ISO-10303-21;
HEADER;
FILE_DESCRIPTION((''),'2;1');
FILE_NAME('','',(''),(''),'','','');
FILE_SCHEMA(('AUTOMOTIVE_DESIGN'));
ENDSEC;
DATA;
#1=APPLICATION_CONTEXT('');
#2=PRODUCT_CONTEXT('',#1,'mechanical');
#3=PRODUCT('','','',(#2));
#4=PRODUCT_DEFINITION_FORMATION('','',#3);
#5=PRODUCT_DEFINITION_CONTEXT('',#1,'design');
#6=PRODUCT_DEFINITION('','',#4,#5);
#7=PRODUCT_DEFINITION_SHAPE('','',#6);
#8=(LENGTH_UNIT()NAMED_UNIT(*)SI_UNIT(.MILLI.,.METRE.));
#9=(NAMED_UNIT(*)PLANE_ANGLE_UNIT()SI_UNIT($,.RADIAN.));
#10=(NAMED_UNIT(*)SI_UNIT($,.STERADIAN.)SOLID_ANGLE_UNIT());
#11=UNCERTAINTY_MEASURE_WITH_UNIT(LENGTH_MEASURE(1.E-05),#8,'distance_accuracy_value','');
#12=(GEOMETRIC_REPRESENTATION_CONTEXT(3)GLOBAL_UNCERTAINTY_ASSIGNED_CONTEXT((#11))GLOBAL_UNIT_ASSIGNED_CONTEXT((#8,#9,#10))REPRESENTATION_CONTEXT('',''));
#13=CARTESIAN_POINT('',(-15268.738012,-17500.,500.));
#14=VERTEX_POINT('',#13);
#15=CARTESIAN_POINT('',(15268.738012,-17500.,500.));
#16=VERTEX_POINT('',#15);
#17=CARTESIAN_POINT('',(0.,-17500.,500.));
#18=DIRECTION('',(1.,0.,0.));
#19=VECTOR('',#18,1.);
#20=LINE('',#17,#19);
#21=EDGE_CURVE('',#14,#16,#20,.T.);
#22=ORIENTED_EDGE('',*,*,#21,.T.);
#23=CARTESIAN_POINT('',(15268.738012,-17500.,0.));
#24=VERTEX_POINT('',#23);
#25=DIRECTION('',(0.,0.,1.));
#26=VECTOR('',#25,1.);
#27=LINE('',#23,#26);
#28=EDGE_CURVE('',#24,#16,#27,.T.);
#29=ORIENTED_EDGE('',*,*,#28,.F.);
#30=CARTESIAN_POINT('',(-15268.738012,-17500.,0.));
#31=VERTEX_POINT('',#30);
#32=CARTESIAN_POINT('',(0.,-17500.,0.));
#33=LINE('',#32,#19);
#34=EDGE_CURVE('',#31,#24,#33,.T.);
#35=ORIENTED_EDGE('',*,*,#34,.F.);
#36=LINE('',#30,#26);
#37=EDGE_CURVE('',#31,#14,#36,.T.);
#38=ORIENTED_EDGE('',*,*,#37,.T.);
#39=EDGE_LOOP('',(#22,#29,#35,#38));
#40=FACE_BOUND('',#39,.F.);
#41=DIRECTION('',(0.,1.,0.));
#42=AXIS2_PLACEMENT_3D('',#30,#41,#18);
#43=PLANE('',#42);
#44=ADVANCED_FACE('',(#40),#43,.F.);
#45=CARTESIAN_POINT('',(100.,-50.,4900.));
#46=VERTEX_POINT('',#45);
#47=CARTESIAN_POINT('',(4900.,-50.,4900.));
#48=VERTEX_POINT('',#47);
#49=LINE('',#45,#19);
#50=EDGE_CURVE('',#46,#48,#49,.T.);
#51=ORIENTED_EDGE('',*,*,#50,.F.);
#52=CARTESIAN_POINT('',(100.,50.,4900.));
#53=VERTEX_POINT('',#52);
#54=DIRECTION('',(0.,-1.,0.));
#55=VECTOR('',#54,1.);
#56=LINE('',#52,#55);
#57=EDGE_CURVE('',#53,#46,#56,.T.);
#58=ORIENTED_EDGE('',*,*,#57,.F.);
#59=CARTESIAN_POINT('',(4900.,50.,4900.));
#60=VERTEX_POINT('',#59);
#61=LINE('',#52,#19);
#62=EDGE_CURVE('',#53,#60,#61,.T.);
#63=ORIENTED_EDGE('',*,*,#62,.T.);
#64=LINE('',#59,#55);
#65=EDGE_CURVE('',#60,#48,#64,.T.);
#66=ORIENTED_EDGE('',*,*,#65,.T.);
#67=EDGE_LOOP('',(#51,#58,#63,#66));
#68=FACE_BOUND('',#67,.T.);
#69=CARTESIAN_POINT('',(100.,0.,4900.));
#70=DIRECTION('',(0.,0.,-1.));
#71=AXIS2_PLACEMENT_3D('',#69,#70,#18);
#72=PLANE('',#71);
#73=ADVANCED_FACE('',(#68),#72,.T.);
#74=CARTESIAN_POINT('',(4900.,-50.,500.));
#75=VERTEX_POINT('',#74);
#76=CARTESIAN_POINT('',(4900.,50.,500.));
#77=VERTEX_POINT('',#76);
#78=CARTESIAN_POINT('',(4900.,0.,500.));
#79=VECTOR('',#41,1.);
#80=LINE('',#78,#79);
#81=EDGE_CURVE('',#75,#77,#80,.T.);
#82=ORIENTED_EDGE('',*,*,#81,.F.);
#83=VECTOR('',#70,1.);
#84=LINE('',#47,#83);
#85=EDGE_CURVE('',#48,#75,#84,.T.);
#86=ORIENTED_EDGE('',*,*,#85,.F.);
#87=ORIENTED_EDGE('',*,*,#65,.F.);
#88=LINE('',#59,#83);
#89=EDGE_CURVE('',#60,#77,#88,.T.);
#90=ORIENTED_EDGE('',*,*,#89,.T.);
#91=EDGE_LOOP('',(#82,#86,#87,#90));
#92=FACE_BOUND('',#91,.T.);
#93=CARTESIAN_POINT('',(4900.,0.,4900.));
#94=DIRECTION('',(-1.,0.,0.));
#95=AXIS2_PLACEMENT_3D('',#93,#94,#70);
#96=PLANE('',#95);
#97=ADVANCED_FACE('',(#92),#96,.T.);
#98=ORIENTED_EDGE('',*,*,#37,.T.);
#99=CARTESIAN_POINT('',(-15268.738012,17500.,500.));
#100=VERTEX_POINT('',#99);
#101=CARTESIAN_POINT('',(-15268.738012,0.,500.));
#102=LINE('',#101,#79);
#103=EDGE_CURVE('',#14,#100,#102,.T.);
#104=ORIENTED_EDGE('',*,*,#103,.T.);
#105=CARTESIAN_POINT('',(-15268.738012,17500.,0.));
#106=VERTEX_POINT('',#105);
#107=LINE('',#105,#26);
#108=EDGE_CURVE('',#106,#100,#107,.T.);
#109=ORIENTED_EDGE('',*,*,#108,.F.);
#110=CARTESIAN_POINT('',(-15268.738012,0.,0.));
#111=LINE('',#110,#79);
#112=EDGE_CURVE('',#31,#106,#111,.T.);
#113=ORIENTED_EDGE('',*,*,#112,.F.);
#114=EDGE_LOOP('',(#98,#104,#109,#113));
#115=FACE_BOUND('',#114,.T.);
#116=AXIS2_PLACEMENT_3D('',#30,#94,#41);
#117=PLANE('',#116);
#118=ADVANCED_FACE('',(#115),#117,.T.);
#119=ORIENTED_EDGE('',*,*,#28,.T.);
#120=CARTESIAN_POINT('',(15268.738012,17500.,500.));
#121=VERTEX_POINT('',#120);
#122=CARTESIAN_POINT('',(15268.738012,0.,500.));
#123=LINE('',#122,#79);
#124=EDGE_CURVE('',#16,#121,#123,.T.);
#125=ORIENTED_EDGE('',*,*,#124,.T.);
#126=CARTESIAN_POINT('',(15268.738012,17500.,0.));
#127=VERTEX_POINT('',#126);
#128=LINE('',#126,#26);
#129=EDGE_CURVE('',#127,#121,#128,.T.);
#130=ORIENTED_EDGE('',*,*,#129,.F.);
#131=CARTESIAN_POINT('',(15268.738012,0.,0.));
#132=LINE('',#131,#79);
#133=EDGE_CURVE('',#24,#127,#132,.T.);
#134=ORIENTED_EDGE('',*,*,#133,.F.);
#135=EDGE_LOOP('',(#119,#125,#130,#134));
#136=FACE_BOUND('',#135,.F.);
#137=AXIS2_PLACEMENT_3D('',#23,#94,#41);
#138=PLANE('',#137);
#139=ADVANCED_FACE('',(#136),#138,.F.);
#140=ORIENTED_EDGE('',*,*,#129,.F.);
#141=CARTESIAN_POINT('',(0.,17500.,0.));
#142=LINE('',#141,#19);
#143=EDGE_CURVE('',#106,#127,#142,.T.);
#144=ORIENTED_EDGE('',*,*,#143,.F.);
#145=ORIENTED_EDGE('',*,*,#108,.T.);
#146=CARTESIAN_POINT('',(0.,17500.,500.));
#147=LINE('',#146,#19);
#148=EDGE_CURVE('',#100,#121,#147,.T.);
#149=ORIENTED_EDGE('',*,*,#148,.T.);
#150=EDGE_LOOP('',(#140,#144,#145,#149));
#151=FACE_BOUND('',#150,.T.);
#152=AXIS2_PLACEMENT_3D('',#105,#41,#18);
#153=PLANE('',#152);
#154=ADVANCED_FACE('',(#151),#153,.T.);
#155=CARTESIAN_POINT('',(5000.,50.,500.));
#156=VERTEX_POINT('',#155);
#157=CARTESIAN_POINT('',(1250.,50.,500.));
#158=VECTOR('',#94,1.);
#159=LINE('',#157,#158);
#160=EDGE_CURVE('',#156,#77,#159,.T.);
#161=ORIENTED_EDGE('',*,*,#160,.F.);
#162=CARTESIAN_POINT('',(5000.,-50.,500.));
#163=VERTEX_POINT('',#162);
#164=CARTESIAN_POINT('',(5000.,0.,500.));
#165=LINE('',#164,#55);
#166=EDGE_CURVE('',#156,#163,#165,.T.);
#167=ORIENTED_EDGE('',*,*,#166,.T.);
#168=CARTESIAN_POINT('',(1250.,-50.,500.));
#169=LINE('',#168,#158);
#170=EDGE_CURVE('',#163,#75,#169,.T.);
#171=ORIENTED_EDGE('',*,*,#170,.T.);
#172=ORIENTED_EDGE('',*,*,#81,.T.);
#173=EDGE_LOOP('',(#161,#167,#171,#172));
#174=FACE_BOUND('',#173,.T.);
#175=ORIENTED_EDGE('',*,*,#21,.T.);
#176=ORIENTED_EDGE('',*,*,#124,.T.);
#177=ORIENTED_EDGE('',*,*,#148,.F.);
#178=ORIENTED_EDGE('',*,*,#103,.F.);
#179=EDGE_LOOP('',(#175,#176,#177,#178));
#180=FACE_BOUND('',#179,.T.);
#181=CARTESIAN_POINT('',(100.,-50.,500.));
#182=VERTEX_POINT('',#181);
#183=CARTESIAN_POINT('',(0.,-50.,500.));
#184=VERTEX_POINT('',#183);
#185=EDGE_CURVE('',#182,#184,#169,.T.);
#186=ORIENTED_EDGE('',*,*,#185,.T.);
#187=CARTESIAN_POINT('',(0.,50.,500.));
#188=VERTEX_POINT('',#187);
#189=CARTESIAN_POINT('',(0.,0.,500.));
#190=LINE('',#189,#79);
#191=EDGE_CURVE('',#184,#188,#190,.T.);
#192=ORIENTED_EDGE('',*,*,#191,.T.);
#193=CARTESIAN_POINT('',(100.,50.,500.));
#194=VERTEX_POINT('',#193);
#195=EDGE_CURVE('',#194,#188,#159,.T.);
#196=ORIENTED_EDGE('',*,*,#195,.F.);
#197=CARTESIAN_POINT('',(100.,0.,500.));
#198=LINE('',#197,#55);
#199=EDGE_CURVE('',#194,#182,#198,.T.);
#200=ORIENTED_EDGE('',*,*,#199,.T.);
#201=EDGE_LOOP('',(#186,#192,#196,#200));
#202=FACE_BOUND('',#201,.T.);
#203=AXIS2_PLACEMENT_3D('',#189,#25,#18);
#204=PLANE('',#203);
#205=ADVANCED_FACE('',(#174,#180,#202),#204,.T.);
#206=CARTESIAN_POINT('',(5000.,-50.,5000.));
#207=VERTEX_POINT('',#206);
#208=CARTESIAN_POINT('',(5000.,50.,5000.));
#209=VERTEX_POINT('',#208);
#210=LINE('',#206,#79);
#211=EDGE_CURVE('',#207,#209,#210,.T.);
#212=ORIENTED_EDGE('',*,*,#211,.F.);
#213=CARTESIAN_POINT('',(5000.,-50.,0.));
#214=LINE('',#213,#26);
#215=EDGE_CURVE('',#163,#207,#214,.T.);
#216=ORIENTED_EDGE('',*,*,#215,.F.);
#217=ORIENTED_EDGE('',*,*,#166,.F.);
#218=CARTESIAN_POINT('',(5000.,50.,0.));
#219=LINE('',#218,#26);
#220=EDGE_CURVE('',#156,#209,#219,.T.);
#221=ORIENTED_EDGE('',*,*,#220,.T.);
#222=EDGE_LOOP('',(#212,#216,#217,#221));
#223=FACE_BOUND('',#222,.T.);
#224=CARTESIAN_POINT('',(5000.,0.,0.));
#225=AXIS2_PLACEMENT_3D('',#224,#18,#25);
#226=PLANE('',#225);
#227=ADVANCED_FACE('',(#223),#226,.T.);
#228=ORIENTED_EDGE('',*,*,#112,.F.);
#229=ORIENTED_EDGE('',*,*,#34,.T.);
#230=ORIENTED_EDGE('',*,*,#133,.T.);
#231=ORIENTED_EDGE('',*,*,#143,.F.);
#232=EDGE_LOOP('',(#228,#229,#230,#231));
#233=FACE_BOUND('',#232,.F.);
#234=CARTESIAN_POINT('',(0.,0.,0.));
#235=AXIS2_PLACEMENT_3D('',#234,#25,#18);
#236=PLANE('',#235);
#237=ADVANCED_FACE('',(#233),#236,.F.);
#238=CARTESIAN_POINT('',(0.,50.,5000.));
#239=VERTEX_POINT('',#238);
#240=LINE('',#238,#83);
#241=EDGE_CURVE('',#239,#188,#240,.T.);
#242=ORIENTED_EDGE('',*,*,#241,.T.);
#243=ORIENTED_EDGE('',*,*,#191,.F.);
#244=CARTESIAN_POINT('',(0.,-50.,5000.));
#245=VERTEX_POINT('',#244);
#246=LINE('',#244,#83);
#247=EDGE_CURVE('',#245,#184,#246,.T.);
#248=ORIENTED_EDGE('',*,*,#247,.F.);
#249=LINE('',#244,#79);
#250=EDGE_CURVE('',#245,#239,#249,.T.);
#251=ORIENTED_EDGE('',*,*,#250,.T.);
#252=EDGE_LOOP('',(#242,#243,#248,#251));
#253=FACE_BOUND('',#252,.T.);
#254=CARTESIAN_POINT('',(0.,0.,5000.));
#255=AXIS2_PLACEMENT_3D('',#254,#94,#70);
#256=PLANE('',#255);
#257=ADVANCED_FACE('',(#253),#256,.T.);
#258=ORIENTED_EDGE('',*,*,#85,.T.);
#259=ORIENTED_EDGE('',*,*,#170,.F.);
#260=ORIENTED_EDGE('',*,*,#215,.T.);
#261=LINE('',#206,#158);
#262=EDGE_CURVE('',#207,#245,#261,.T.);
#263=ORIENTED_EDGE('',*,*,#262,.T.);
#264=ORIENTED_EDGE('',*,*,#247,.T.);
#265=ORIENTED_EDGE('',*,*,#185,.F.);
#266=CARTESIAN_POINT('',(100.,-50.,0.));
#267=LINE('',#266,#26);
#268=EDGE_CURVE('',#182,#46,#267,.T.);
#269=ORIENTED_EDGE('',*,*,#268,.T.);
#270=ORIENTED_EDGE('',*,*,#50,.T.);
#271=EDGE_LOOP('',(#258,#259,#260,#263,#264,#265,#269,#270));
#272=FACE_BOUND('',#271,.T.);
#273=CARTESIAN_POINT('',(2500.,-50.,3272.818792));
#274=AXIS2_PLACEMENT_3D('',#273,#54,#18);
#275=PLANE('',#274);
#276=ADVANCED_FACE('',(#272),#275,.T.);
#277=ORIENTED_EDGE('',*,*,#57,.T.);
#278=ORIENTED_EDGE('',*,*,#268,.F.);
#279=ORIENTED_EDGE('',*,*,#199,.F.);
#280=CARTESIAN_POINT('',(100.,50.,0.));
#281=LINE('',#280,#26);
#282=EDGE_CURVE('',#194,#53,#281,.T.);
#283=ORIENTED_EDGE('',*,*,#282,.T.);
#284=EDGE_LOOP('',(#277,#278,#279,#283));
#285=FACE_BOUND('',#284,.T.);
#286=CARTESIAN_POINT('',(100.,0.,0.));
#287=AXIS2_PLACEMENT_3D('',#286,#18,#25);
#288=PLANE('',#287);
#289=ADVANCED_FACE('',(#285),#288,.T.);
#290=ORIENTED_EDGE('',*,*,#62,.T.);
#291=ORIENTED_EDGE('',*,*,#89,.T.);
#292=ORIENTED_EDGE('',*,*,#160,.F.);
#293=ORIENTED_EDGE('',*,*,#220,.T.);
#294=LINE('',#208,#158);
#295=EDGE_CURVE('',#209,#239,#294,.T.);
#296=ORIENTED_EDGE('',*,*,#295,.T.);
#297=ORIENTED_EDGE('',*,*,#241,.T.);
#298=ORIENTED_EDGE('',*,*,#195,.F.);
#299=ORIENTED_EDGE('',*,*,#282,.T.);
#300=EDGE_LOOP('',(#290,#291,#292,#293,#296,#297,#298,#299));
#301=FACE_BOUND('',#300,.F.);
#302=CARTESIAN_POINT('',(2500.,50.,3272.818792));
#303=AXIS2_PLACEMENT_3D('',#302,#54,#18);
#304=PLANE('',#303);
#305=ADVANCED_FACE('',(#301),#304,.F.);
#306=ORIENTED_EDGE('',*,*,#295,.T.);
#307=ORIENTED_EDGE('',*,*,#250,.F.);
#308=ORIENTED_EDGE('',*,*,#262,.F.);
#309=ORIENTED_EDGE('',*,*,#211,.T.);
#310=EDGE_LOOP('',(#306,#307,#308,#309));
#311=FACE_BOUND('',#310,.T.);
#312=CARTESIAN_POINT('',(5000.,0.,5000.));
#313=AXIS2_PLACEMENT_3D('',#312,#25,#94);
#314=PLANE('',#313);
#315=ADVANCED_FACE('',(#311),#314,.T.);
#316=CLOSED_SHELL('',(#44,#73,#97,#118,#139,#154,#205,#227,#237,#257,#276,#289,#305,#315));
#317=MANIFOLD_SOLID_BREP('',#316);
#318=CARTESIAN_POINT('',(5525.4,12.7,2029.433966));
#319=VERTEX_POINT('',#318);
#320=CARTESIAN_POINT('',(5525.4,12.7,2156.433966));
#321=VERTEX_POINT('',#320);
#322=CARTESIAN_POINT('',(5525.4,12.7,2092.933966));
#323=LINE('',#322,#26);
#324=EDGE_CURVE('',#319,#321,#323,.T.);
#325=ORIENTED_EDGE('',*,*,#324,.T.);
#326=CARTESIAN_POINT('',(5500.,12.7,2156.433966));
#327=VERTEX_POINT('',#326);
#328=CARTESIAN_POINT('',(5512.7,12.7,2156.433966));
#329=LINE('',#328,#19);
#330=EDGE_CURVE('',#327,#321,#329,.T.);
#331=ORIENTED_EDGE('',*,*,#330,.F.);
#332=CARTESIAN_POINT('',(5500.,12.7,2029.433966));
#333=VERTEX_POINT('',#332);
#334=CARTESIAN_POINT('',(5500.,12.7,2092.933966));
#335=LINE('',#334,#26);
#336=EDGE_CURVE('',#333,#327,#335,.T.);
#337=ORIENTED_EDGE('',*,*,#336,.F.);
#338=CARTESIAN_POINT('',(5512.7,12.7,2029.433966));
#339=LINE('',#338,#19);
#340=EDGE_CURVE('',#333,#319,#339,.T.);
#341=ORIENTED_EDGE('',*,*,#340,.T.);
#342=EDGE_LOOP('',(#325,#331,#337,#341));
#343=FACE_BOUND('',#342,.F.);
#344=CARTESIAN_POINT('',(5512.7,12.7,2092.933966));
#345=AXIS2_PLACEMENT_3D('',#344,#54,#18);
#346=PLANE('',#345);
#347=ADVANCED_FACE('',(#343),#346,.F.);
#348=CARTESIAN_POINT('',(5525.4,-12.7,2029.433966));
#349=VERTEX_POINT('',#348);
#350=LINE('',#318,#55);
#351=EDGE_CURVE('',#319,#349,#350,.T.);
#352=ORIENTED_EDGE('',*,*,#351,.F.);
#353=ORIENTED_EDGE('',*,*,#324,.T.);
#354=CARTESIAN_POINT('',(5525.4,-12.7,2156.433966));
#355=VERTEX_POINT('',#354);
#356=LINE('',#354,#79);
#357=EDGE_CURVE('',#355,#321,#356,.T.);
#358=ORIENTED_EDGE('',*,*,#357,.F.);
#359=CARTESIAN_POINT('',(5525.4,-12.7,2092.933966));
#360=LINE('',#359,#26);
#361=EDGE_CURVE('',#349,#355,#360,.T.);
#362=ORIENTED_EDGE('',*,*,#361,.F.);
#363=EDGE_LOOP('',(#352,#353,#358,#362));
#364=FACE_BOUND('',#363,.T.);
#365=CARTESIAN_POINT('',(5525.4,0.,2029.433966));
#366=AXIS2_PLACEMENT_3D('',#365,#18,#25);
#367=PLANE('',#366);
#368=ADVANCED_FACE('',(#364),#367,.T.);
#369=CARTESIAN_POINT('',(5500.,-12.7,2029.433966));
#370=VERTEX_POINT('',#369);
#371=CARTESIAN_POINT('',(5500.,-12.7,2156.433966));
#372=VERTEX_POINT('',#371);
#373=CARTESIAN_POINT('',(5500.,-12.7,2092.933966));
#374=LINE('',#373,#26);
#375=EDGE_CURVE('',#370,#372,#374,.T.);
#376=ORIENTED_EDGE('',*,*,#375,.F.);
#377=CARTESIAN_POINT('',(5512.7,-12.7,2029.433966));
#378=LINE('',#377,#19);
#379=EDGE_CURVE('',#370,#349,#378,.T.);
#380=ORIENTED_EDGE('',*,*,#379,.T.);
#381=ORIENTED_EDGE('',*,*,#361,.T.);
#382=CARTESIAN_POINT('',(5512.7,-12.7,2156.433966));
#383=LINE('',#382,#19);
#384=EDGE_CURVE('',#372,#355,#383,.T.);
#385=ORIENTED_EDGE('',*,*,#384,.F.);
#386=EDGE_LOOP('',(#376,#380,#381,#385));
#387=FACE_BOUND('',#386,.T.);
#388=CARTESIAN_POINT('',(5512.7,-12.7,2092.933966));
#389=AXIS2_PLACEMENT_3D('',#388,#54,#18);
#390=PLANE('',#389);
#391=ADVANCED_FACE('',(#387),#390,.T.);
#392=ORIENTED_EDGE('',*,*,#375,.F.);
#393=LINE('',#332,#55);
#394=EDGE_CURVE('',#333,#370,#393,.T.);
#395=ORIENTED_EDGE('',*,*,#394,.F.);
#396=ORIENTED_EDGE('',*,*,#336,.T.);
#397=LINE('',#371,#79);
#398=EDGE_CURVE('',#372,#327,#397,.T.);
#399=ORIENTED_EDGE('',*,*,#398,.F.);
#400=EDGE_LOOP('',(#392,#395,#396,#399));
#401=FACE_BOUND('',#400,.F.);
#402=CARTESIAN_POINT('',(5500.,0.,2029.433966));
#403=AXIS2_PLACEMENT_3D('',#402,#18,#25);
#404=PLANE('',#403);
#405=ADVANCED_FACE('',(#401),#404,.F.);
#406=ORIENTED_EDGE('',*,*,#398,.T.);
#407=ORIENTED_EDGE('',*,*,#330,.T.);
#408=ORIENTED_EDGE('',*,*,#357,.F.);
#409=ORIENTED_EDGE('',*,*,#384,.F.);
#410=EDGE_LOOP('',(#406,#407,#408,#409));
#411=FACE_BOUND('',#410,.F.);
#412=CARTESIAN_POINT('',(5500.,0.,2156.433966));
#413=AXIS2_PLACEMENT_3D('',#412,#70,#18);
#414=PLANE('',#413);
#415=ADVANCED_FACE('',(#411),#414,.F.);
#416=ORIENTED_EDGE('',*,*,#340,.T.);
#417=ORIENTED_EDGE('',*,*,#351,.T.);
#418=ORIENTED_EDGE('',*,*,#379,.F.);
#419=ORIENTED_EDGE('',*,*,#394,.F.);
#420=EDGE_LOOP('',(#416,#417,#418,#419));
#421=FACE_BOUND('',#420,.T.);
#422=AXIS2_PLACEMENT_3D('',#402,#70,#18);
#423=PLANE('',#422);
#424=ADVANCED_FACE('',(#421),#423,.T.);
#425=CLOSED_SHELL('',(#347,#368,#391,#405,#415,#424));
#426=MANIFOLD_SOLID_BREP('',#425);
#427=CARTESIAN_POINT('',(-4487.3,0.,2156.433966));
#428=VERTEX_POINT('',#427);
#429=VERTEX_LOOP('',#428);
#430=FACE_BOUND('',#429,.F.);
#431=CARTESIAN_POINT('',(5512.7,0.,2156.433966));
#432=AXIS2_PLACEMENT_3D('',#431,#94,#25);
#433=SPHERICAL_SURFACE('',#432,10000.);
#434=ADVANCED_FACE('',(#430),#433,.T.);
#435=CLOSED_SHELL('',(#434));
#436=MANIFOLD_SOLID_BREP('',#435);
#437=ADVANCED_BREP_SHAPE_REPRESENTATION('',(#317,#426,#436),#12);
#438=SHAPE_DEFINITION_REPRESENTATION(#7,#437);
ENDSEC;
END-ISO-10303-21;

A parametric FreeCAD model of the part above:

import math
import FreeCAD as App
import Part
import Sketcher
Q = App.Units.Quantity


def add_polygon(sketch, points):
    """Adds a closed chain of lines whose ends are joined by coincident constraints."""
    first, n = sketch.GeometryCount, len(points)
    for a, b in zip(points, points[1:] + points[:1]):
        sketch.addGeometry(Part.LineSegment(App.Vector(*a, 0), App.Vector(*b, 0)), False)
    for i in range(n):
        sketch.addConstraint(Sketcher.Constraint("Coincident", first + i, 2, first + (i + 1) % n, 1))

doc = App.newDocument("Part")
body = doc.addObject("PartDesign::Body", "Body")

# Sketch on XZ plane
sketch1 = doc.addObject("Sketcher::SketchObject", "Sketch")
body.addObject(sketch1)
sketch1.AttachmentSupport = (doc.XZ_Plane, [""])
sketch1.MapMode = "FlatFace"
add_polygon(sketch1, [(0, 5000), (0, 0), (100, 0), (100, 4900), (4900, 4900), (4900, 0), (5000, 0), (5000, 5000)])  # lines 0-7
sketch1.addConstraint([
    Sketcher.Constraint("Vertical", 0),
    Sketcher.Constraint("Horizontal", 1),
    Sketcher.Constraint("Vertical", 2),
    Sketcher.Constraint("Horizontal", 3),
    Sketcher.Constraint("Vertical", 4),
    Sketcher.Constraint("Horizontal", 5),
    Sketcher.Constraint("Vertical", 6),
    Sketcher.Constraint("Horizontal", 7),
    Sketcher.Constraint("Coincident", 0, 2, -1, 1),
    Sketcher.Constraint("PointOnObject", 4, 2, -1),
    Sketcher.Constraint("Equal", 1, 5),
    Sketcher.Constraint("Equal", 7, 0),
    Sketcher.Constraint("DistanceX", 1, 1, 1, 2, Q("100 mm")),
    Sketcher.Constraint("DistanceX", 3, 1, 3, 2, Q("4800 mm")),
    Sketcher.Constraint("DistanceY", 2, 1, 2, 2, Q("4900 mm")),
])
pad1 = doc.addObject("PartDesign::Pad", "Pad")
body.addObject(pad1)
pad1.Profile = sketch1
pad1.Length = 100
pad1.Midplane = True

# Sketch on XY plane
sketch2 = doc.addObject("Sketcher::SketchObject", "Sketch001")
body.addObject(sketch2)
sketch2.AttachmentSupport = (doc.XY_Plane, [""])
sketch2.MapMode = "FlatFace"
add_polygon(sketch2, [(-15269, 17500), (-15269, -17500), (15269, -17500), (15269, 17500)])  # lines 0-3
sketch2.addConstraint([
    Sketcher.Constraint("Vertical", 0),
    Sketcher.Constraint("Horizontal", 1),
    Sketcher.Constraint("Vertical", 2),
    Sketcher.Constraint("Horizontal", 3),
    Sketcher.Constraint("Symmetric", 0, 2, 2, 2, -1, 1),
    Sketcher.Constraint("DistanceY", 0, 2, 0, 1, Q("35000 mm")),
    Sketcher.Constraint("DistanceX", 1, 1, 1, 2, Q("30537.476025 mm")),
])
pad2 = doc.addObject("PartDesign::Pad", "Pad001")
body.addObject(pad2)
pad2.Profile = sketch2
pad2.Length = 500
body2 = doc.addObject("PartDesign::Body", "Body001")

# Sketch on XZ plane
sketch3 = doc.addObject("Sketcher::SketchObject", "Sketch002")
body2.addObject(sketch3)
sketch3.AttachmentSupport = (doc.getObject("XZ_Plane001"), [""])
sketch3.MapMode = "FlatFace"
add_polygon(sketch3, [(5500, 2156), (5500, 2029), (5525, 2029), (5525, 2156)])  # lines 0-3
sketch3.addConstraint([
    Sketcher.Constraint("Vertical", 0),
    Sketcher.Constraint("Horizontal", 1),
    Sketcher.Constraint("Vertical", 2),
    Sketcher.Constraint("Horizontal", 3),
    Sketcher.Constraint("DistanceY", 0, 2, 0, 1, Q("127 mm")),
    Sketcher.Constraint("DistanceX", 1, 1, 1, 2, Q("25.4 mm")),
    Sketcher.Constraint("DistanceX", -1, 1, 0, 2, Q("5500 mm")),
    Sketcher.Constraint("DistanceY", -1, 1, 0, 2, Q("2029.433966 mm")),
])
pad3 = doc.addObject("PartDesign::Pad", "Pad002")
body2.addObject(pad3)
pad3.Profile = sketch3
pad3.Length = 25.4
pad3.Midplane = True
body3 = doc.addObject("PartDesign::Body", "Body002")

# Sketch on XZ plane
sketch4 = doc.addObject("Sketcher::SketchObject", "Sketch003")
body3.addObject(sketch4)
sketch4.AttachmentSupport = (doc.getObject("XZ_Plane002"), [""])
sketch4.MapMode = "FlatFace"
sketch4.addGeometry([
    Part.LineSegment(App.Vector(-4487, 2156, 0), App.Vector(15513, 2156, 0)),
    Part.ArcOfCircle(Part.Circle(App.Vector(5513, 2156, 0), App.Vector(0, 0, 1), 10000), math.radians(0), math.radians(180)),
], False)
sketch4.addGeometry(Part.LineSegment(App.Vector(-4487, 2156, 0), App.Vector(15513, 2156, 0)), True)  # axis
sketch4.addConstraint([
    Sketcher.Constraint("Coincident", 0, 1, 1, 2),
    Sketcher.Constraint("Coincident", 1, 1, 0, 2),
    Sketcher.Constraint("Horizontal", 0),
    Sketcher.Constraint("Horizontal", 2),
    Sketcher.Constraint("Coincident", 2, 1, 0, 1),
    Sketcher.Constraint("Horizontal", 1, 3, 0, 1),
    Sketcher.Constraint("Equal", 0, 2),
    Sketcher.Constraint("Radius", 1, Q("10000 mm")),
    Sketcher.Constraint("DistanceX", -1, 1, 1, 3, Q("5512.7 mm")),
    Sketcher.Constraint("DistanceY", -1, 1, 1, 3, Q("2156.433966 mm")),
])
revolution = doc.addObject("PartDesign::Revolution", "Revolution")
body3.addObject(revolution)
revolution.Profile = sketch4
revolution.ReferenceAxis = (sketch4, ["Axis0"])
revolution.Angle = 360

doc.recompute()
